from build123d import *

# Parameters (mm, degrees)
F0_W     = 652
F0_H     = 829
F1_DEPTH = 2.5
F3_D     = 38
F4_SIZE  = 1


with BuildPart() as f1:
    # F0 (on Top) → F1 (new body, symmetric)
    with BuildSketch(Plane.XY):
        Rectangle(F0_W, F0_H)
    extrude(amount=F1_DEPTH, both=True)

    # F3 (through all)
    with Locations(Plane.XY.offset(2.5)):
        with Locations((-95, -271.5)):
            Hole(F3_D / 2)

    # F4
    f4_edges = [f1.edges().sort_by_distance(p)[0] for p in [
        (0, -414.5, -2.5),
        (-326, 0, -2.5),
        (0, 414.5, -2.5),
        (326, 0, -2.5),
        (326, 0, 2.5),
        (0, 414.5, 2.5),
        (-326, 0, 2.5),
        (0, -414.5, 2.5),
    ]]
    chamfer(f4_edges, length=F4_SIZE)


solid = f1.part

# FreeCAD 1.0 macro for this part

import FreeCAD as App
import Part
import Sketcher
from FreeCAD import Vector
Q = App.Units.Quantity


def edges_at(feature, points):
    """Names of the edges that pass closest to the given points."""
    edges = feature.Shape.Edges
    near = lambda p: min(range(len(edges)), key=lambda i: edges[i].distToShape(Part.Vertex(*p))[0])
    return sorted({f"Edge{near(p) + 1}" for p in points})


def add_polygon(sketch, points):
    """Adds a closed chain of lines whose ends are joined by coincident constraints."""
    first, n = sketch.GeometryCount, len(points)
    for a, b in zip(points, points[1:] + points[:1]):
        sketch.addGeometry(Part.LineSegment(App.Vector(*a, 0), App.Vector(*b, 0)), False)
    for i in range(n):
        sketch.addConstraint(Sketcher.Constraint("Coincident", first + i, 2, first + (i + 1) % n, 1))

doc = App.newDocument("Part")
body = doc.addObject("PartDesign::Body", "Body")

# Sketch on XY plane
sketch1 = body.newObject("Sketcher::SketchObject", "Sketch")
sketch1.AttachmentSupport = (doc.getObject("XY_Plane"), [""])
sketch1.MapMode = "FlatFace"
add_polygon(sketch1, [(-326, 414.5), (-326, -414.5), (326, -414.5), (326, 414.5)])  # lines 0-3
sketch1.addConstraint([
    Sketcher.Constraint("Vertical", 0),
    Sketcher.Constraint("Horizontal", 1),
    Sketcher.Constraint("Vertical", 2),
    Sketcher.Constraint("Horizontal", 3),
    Sketcher.Constraint("Symmetric", 0, 2, 2, 2, -1, 1),
    Sketcher.Constraint("DistanceX", 1, 1, 1, 2, Q("652 mm")),
    Sketcher.Constraint("DistanceY", 0, 2, 0, 1, Q("829 mm")),
])
pad1 = body.newObject("PartDesign::Pad", "Pad")
pad1.Profile = sketch1
pad1.Length = 5
pad1.Midplane = True

# Sketch on XY plane
sketch2 = body.newObject("Sketcher::SketchObject", "Sketch001")
sketch2.AttachmentSupport = (doc.getObject("XY_Plane"), [""])
sketch2.MapMode = "FlatFace"
sketch2.AttachmentOffset = App.Placement(Vector(0, 0, 2.5), App.Rotation())
sketch2.addGeometry(Part.Circle(Vector(-95, -271.5, 0), Vector(0, 0, 1), 19), False)
sketch2.addConstraint([
    Sketcher.Constraint("Diameter", 0, Q("38 mm")),
    Sketcher.Constraint("DistanceX", 0, 3, -1, 1, Q("95 mm")),
    Sketcher.Constraint("DistanceY", 0, 3, -1, 1, Q("271.5 mm")),
])
doc.recompute()
hole = body.newObject("PartDesign::Hole", "Hole")
hole.Profile = sketch2
hole.ThreadType = "None"
hole.Diameter = 38
hole.DepthType = "ThroughAll"
doc.recompute()

chamfer = body.newObject("PartDesign::Chamfer", "Chamfer")
chamfer.Base = (hole, edges_at(hole, [
    (0, -414.5, -2.5),
    (-326, 0, -2.5),
    (0, 414.5, -2.5),
    (326, 0, -2.5),
    (326, 0, 2.5),
    (0, 414.5, 2.5),
    (-326, 0, 2.5),
    (0, -414.5, 2.5),
]))
chamfer.Size = 1

doc.recompute()
